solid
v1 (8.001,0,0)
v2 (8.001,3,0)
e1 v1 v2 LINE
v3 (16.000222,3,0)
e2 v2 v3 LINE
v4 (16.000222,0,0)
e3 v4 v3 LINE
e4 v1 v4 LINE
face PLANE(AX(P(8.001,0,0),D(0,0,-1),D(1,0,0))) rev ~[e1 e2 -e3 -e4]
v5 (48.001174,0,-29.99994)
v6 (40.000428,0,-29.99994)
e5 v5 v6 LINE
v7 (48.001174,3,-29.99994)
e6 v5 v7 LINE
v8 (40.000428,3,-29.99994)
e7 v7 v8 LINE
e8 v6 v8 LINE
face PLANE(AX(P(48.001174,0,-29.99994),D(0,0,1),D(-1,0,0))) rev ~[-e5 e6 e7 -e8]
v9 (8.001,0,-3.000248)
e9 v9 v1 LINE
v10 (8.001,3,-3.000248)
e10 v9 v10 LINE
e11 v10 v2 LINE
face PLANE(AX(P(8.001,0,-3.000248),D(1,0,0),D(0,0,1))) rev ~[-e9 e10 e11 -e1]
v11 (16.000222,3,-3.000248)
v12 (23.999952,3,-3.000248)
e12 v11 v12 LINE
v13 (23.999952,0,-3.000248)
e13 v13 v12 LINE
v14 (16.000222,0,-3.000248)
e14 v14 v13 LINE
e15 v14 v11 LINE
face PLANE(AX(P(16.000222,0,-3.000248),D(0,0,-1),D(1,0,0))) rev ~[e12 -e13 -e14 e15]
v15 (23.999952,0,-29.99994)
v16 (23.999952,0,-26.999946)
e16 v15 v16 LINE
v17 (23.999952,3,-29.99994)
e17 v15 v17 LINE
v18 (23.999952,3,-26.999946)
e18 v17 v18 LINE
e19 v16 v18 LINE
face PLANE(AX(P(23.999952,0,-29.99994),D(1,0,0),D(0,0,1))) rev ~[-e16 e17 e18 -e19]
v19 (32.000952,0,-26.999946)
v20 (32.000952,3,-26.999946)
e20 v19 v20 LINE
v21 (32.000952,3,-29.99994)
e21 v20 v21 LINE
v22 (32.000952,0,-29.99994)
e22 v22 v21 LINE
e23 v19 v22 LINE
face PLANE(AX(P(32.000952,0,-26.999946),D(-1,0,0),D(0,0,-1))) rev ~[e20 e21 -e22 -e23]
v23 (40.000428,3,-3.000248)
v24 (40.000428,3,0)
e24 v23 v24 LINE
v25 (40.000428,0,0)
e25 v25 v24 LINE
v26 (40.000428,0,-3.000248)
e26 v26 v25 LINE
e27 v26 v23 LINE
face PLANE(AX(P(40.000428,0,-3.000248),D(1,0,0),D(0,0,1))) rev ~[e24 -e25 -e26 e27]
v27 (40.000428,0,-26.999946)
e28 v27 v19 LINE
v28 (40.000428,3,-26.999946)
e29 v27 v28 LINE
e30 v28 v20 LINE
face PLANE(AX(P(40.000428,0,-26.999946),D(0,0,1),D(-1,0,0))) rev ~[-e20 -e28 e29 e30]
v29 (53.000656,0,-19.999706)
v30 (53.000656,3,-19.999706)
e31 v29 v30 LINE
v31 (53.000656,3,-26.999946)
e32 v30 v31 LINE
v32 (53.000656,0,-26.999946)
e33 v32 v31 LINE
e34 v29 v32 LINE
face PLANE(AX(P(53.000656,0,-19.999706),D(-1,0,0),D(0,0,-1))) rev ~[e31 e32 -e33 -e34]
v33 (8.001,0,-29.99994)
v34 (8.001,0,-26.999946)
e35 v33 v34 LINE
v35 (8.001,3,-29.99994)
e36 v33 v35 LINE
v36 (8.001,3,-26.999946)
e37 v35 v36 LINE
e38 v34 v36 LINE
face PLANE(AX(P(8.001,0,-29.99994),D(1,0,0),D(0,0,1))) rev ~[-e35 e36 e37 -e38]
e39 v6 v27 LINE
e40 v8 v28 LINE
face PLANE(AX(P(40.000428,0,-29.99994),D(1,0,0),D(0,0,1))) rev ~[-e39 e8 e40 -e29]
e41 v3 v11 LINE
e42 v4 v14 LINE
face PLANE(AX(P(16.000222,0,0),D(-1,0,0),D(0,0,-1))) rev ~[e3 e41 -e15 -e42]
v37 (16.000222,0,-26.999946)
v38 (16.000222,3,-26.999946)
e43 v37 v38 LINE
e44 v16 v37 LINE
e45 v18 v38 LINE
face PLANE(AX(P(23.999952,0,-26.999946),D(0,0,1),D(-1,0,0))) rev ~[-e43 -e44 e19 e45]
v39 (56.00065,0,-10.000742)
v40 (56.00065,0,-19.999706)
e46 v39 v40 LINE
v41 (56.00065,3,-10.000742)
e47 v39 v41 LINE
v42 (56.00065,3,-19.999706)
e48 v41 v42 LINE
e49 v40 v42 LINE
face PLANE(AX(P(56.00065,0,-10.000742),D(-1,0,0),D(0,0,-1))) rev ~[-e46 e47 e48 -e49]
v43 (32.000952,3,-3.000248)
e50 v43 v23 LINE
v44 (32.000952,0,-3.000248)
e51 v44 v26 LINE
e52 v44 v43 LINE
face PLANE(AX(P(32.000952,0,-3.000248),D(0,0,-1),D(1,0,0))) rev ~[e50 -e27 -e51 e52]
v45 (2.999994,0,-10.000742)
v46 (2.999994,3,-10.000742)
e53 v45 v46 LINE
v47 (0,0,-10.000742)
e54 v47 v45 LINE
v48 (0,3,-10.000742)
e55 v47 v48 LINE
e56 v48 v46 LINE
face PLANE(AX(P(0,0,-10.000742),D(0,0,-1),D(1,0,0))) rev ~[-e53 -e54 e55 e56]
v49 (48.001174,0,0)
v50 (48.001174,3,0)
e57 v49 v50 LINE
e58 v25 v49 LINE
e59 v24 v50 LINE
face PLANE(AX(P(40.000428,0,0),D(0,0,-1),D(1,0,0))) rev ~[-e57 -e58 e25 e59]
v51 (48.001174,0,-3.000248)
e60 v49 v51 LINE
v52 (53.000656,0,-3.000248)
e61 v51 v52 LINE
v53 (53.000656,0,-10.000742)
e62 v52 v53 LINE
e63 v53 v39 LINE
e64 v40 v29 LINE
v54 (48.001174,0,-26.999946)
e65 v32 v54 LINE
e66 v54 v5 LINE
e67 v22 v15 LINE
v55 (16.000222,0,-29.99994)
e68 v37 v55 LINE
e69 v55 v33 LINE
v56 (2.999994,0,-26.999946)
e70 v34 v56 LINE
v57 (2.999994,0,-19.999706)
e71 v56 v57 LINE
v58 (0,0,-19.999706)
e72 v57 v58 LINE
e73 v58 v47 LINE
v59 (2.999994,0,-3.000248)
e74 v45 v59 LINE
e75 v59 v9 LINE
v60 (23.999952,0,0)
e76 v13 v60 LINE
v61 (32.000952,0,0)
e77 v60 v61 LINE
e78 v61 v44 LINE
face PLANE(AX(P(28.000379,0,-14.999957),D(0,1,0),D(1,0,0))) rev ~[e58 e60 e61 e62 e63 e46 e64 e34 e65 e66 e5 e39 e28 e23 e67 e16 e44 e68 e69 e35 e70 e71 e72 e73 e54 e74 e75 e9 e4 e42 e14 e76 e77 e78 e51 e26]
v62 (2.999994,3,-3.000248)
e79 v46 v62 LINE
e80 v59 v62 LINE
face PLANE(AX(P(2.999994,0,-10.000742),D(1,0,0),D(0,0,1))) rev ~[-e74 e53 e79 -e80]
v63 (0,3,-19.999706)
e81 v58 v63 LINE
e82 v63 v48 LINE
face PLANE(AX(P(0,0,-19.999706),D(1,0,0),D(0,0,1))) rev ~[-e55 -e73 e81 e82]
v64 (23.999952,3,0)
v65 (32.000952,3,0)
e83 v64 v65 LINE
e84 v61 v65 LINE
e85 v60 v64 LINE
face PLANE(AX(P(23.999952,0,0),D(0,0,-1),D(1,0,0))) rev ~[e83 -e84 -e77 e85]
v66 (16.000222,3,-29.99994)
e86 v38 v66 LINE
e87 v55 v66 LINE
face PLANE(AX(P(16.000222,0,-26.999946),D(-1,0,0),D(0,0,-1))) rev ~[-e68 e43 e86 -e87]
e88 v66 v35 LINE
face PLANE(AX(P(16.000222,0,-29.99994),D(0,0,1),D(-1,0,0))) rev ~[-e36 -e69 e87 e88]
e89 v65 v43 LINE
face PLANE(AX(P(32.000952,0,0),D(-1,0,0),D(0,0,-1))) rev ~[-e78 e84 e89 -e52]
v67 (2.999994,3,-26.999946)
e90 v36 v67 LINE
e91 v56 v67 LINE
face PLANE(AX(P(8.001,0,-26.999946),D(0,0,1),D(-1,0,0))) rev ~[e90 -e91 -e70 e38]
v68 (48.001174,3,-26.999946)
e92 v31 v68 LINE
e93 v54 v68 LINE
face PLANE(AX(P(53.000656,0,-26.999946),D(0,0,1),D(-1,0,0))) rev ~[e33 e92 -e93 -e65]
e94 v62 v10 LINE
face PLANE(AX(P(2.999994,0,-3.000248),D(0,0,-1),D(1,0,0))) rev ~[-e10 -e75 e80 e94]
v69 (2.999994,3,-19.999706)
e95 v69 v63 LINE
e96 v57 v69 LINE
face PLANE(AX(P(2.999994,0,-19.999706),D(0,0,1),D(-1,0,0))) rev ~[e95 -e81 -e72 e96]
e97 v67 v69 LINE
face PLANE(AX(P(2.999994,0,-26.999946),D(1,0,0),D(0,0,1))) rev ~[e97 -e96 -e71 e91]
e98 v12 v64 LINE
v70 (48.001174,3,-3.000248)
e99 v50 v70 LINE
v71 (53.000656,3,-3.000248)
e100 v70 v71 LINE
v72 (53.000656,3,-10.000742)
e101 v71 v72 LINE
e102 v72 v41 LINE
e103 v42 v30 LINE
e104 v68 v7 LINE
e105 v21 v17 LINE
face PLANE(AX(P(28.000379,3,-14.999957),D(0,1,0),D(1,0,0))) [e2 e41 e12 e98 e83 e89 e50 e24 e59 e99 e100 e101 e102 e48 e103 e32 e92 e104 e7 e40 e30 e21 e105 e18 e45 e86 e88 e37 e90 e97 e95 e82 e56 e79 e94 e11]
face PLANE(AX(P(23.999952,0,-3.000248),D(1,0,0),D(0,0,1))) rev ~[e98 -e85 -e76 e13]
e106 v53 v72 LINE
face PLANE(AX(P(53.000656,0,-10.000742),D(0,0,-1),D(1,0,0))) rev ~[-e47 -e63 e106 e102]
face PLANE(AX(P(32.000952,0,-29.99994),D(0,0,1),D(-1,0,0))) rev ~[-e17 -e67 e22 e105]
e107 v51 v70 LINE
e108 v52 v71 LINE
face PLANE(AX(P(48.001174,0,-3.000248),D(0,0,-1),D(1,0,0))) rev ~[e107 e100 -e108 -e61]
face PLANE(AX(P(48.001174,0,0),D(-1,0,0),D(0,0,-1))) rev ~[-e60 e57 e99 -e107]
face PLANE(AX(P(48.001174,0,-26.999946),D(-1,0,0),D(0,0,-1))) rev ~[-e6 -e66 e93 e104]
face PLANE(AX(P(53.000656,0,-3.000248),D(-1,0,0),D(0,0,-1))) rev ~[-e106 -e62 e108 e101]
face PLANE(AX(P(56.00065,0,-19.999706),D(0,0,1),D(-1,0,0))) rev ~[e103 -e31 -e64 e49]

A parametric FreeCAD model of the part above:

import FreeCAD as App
import Part
import Sketcher
from FreeCAD import Vector

doc = App.newDocument("Part")
body = doc.addObject("PartDesign::Body", "Body")

# Sketch on XZ plane
sketch1 = body.newObject("Sketcher::SketchObject", "Sketch")
sketch1.AttachmentSupport = (doc.getObject("XZ_Plane"), [""])
sketch1.MapMode = "FlatFace"
sketch1.addGeometry([
    Part.LineSegment(Vector(3, -27, 0), Vector(3, -20, 0)),  # 0
    Part.LineSegment(Vector(3, -20, 0), Vector(0, -20, 0)),  # 1
    Part.LineSegment(Vector(0, -20, 0), Vector(0, -10, 0)),  # 2
    Part.LineSegment(Vector(0, -10, 0), Vector(3, -10, 0)),  # 3
    Part.LineSegment(Vector(3, -10, 0), Vector(3, -3, 0)),  # 4
    Part.LineSegment(Vector(3, -3, 0), Vector(8, -3, 0)),  # 5
    Part.LineSegment(Vector(8, -3, 0), Vector(8, 0, 0)),  # 6
    Part.LineSegment(Vector(8, 0, 0), Vector(16, 0, 0)),  # 7
    Part.LineSegment(Vector(16, 0, 0), Vector(16, -3, 0)),  # 8
    Part.LineSegment(Vector(16, -3, 0), Vector(24, -3, 0)),  # 9
    Part.LineSegment(Vector(24, -3, 0), Vector(24, 0, 0)),  # 10
    Part.LineSegment(Vector(24, 0, 0), Vector(32, 0, 0)),  # 11
    Part.LineSegment(Vector(32, 0, 0), Vector(32, -3, 0)),  # 12
    Part.LineSegment(Vector(32, -3, 0), Vector(40, -3, 0)),  # 13
    Part.LineSegment(Vector(40, -3, 0), Vector(40, 0, 0)),  # 14
    Part.LineSegment(Vector(40, 0, 0), Vector(48, 0, 0)),  # 15
    Part.LineSegment(Vector(48, 0, 0), Vector(48, -3, 0)),  # 16
    Part.LineSegment(Vector(48, -3, 0), Vector(53, -3, 0)),  # 17
    Part.LineSegment(Vector(53, -3, 0), Vector(53, -10, 0)),  # 18
    Part.LineSegment(Vector(53, -10, 0), Vector(56, -10, 0)),  # 19
    Part.LineSegment(Vector(56, -10, 0), Vector(56, -20, 0)),  # 20
    Part.LineSegment(Vector(56, -20, 0), Vector(53, -20, 0)),  # 21
    Part.LineSegment(Vector(53, -20, 0), Vector(53, -27, 0)),  # 22
    Part.LineSegment(Vector(53, -27, 0), Vector(48, -27, 0)),  # 23
    Part.LineSegment(Vector(48, -27, 0), Vector(48, -30, 0)),  # 24
    Part.LineSegment(Vector(48, -30, 0), Vector(40, -30, 0)),  # 25
    Part.LineSegment(Vector(40, -30, 0), Vector(40, -27, 0)),  # 26
    Part.LineSegment(Vector(40, -27, 0), Vector(32, -27, 0)),  # 27
    Part.LineSegment(Vector(32, -27, 0), Vector(32, -30, 0)),  # 28
    Part.LineSegment(Vector(32, -30, 0), Vector(24, -30, 0)),  # 29
    Part.LineSegment(Vector(24, -30, 0), Vector(24, -27, 0)),  # 30
    Part.LineSegment(Vector(24, -27, 0), Vector(16, -27, 0)),  # 31
    Part.LineSegment(Vector(16, -27, 0), Vector(16, -30, 0)),  # 32
    Part.LineSegment(Vector(16, -30, 0), Vector(8, -30, 0)),  # 33
    Part.LineSegment(Vector(8, -30, 0), Vector(8, -27, 0)),  # 34
    Part.LineSegment(Vector(8, -27, 0), Vector(3, -27, 0)),  # 35
], False)
sketch1.addConstraint([
    Sketcher.Constraint("Coincident", 0, 2, 1, 1),
    Sketcher.Constraint("Coincident", 1, 2, 2, 1),
    Sketcher.Constraint("Coincident", 2, 2, 3, 1),
    Sketcher.Constraint("Coincident", 3, 2, 4, 1),
    Sketcher.Constraint("Coincident", 4, 2, 5, 1),
    Sketcher.Constraint("Coincident", 5, 2, 6, 1),
    Sketcher.Constraint("Coincident", 6, 2, 7, 1),
    Sketcher.Constraint("Coincident", 7, 2, 8, 1),
    Sketcher.Constraint("Coincident", 8, 2, 9, 1),
    Sketcher.Constraint("Coincident", 9, 2, 10, 1),
    Sketcher.Constraint("Coincident", 10, 2, 11, 1),
    Sketcher.Constraint("Coincident", 11, 2, 12, 1),
    Sketcher.Constraint("Coincident", 12, 2, 13, 1),
    Sketcher.Constraint("Coincident", 13, 2, 14, 1),
    Sketcher.Constraint("Coincident", 14, 2, 15, 1),
    Sketcher.Constraint("Coincident", 15, 2, 16, 1),
    Sketcher.Constraint("Coincident", 16, 2, 17, 1),
    Sketcher.Constraint("Coincident", 17, 2, 18, 1),
    Sketcher.Constraint("Coincident", 18, 2, 19, 1),
    Sketcher.Constraint("Coincident", 19, 2, 20, 1),
    Sketcher.Constraint("Coincident", 20, 2, 21, 1),
    Sketcher.Constraint("Coincident", 21, 2, 22, 1),
    Sketcher.Constraint("Coincident", 22, 2, 23, 1),
    Sketcher.Constraint("Coincident", 23, 2, 24, 1),
    Sketcher.Constraint("Coincident", 24, 2, 25, 1),
    Sketcher.Constraint("Coincident", 25, 2, 26, 1),
    Sketcher.Constraint("Coincident", 26, 2, 27, 1),
    Sketcher.Constraint("Coincident", 27, 2, 28, 1),
    Sketcher.Constraint("Coincident", 28, 2, 29, 1),
    Sketcher.Constraint("Coincident", 29, 2, 30, 1),
    Sketcher.Constraint("Coincident", 30, 2, 31, 1),
    Sketcher.Constraint("Coincident", 31, 2, 32, 1),
    Sketcher.Constraint("Coincident", 32, 2, 33, 1),
    Sketcher.Constraint("Coincident", 33, 2, 34, 1),
    Sketcher.Constraint("Coincident", 34, 2, 35, 1),
    Sketcher.Constraint("Coincident", 35, 2, 0, 1),
    Sketcher.Constraint("Vertical", 0),
    Sketcher.Constraint("Horizontal", 1),
    Sketcher.Constraint("Vertical", 2),
    Sketcher.Constraint("Horizontal", 3),
    Sketcher.Constraint("Vertical", 4),
    Sketcher.Constraint("Horizontal", 5),
    Sketcher.Constraint("Vertical", 6),
    Sketcher.Constraint("Horizontal", 7),
    Sketcher.Constraint("Vertical", 8),
    Sketcher.Constraint("Horizontal", 9),
    Sketcher.Constraint("Vertical", 10),
    Sketcher.Constraint("Horizontal", 11),
    Sketcher.Constraint("Vertical", 12),
    Sketcher.Constraint("Horizontal", 13),
    Sketcher.Constraint("Vertical", 14),
    Sketcher.Constraint("Horizontal", 15),
    Sketcher.Constraint("Vertical", 16),
    Sketcher.Constraint("Horizontal", 17),
    Sketcher.Constraint("Vertical", 18),
    Sketcher.Constraint("Horizontal", 19),
    Sketcher.Constraint("Vertical", 20),
    Sketcher.Constraint("Horizontal", 21),
    Sketcher.Constraint("Vertical", 22),
    Sketcher.Constraint("Horizontal", 23),
    Sketcher.Constraint("Vertical", 24),
    Sketcher.Constraint("Horizontal", 25),
    Sketcher.Constraint("Vertical", 26),
    Sketcher.Constraint("Horizontal", 27),
    Sketcher.Constraint("Vertical", 28),
    Sketcher.Constraint("Horizontal", 29),
    Sketcher.Constraint("Vertical", 30),
    Sketcher.Constraint("Horizontal", 31),
    Sketcher.Constraint("Vertical", 32),
    Sketcher.Constraint("Horizontal", 33),
    Sketcher.Constraint("Vertical", 34),
    Sketcher.Constraint("Horizontal", 35),
    Sketcher.Constraint("PointOnObject", 1, 2, -2),
    Sketcher.Constraint("PointOnObject", 6, 2, -1),
    Sketcher.Constraint("PointOnObject", 10, 2, -1),
    Sketcher.Constraint("PointOnObject", 14, 2, -1),
    Sketcher.Constraint("Horizontal", 5, 2, 8, 2),
    Sketcher.Constraint("Horizontal", 9, 2, 12, 2),
    Sketcher.Constraint("Horizontal", 13, 2, 16, 2),
    Sketcher.Constraint("Horizontal", 3, 2, 18, 2),
    Sketcher.Constraint("Horizontal", 1, 2, 20, 2),
    Sketcher.Constraint("Horizontal", 23, 2, 26, 2),
    Sketcher.Constraint("Horizontal", 25, 2, 28, 2),
    Sketcher.Constraint("Horizontal", 27, 2, 30, 2),
    Sketcher.Constraint("Horizontal", 29, 2, 32, 2),
    Sketcher.Constraint("Horizontal", 31, 2, 34, 2),
    Sketcher.Constraint("Vertical", 0, 2, 3, 2),
    Sketcher.Constraint("Vertical", 18, 2, 21, 2),
    Sketcher.Constraint("Vertical", 16, 2, 23, 2),
    Sketcher.Constraint("Vertical", 14, 2, 25, 2),
    Sketcher.Constraint("Vertical", 12, 2, 27, 2),
    Sketcher.Constraint("Vertical", 10, 2, 29, 2),
    Sketcher.Constraint("Vertical", 8, 2, 31, 2),
    Sketcher.Constraint("Vertical", 6, 2, 33, 2),
    Sketcher.Constraint("Equal", 3, 19),
    Sketcher.Constraint("Equal", 21, 24),
    Sketcher.Constraint("DistanceX", 11, 1, 11, 2, 8.001),
    Sketcher.Constraint("DistanceX", -1, 1, 5, 2, 8.001),
    Sketcher.Constraint("DistanceX", 9, 1, 9, 2, 7.99973),
    Sketcher.Constraint("DistanceY", 0, 1, 0, 2, 7.00024),
    Sketcher.Constraint("DistanceY", 6, 1, 6, 2, 3.000248),
    Sketcher.Constraint("DistanceY", 22, 2, 17, 2, 23.999698),
    Sketcher.Constraint("DistanceY", 24, 2, 18, 2, 19.999198),
    Sketcher.Constraint("DistanceX", 1, 2, 1, 1, 2.999994),
    Sketcher.Constraint("DistanceX", 7, 1, 7, 2, 7.999222),
    Sketcher.Constraint("DistanceX", 13, 1, 13, 2, 7.999476),
    Sketcher.Constraint("DistanceX", 15, 1, 15, 2, 8.000746),
    Sketcher.Constraint("DistanceX", 17, 1, 17, 2, 4.999482),
])
pad1 = body.newObject("PartDesign::Pad", "Pad")
pad1.Profile = sketch1
pad1.Length = 3
pad1.Reversed = True

doc.recompute()
